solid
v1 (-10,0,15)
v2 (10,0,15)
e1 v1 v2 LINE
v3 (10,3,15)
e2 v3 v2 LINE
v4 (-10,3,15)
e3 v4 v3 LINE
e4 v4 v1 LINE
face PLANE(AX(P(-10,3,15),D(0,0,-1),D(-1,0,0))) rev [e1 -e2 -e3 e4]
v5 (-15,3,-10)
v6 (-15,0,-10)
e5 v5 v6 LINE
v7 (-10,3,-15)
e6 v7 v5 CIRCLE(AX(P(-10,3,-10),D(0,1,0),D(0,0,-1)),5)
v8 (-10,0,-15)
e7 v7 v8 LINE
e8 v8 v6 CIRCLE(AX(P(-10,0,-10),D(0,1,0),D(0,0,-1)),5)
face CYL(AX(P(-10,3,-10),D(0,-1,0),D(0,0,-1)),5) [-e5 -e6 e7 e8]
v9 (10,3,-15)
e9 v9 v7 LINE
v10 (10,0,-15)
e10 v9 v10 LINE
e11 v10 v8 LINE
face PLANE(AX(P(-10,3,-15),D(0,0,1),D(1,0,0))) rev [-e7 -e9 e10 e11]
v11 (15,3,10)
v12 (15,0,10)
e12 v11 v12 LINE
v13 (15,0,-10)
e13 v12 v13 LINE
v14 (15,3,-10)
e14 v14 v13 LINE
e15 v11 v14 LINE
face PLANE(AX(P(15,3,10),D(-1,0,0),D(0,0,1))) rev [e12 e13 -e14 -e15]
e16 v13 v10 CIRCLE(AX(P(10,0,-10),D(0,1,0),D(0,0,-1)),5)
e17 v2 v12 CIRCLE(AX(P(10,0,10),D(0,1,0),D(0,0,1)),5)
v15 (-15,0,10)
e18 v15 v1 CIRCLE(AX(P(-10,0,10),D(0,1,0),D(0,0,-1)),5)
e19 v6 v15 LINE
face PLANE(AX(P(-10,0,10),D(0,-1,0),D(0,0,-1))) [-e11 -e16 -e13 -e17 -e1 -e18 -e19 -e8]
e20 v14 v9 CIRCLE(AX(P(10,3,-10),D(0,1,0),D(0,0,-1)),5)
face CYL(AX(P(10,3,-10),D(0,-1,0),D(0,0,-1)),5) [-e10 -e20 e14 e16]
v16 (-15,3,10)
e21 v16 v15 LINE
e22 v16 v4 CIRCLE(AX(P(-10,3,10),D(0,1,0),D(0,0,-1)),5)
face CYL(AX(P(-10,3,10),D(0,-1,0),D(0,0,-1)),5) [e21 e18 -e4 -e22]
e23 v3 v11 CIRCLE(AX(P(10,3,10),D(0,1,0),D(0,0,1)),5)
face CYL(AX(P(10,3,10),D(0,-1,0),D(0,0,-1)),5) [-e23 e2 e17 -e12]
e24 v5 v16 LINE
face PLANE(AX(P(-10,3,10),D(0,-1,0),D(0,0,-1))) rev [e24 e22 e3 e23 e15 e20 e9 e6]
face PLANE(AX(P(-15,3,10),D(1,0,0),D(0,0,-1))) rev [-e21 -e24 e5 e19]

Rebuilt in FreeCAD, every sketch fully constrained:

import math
import FreeCAD as App
import Part
import Sketcher
Q = App.Units.Quantity

doc = App.newDocument("Part")
body = doc.addObject("PartDesign::Body", "Body")

# Sketch on XZ plane
sketch1 = body.newObject("Sketcher::SketchObject", "Sketch")
sketch1.AttachmentSupport = (doc.getObject("XZ_Plane"), [""])
sketch1.MapMode = "FlatFace"
sketch1.addGeometry([
    Part.LineSegment(App.Vector(-10, 15, 0), App.Vector(10, 15, 0)),  # 0
    Part.ArcOfCircle(Part.Circle(App.Vector(10, 10, 0), App.Vector(0, 0, 1), 5), math.radians(0), math.radians(90)),  # 1
    Part.LineSegment(App.Vector(15, 10, 0), App.Vector(15, -10, 0)),  # 2
    Part.ArcOfCircle(Part.Circle(App.Vector(10, -10, 0), App.Vector(0, 0, 1), 5), math.radians(-90), math.radians(0)),  # 3
    Part.LineSegment(App.Vector(10, -15, 0), App.Vector(-10, -15, 0)),  # 4
    Part.ArcOfCircle(Part.Circle(App.Vector(-10, -10, 0), App.Vector(0, 0, 1), 5), math.radians(180), math.radians(270)),  # 5
    Part.LineSegment(App.Vector(-15, -10, 0), App.Vector(-15, 10, 0)),  # 6
    Part.ArcOfCircle(Part.Circle(App.Vector(-10, 10, 0), App.Vector(0, 0, 1), 5), math.radians(90), math.radians(180)),  # 7
], False)
sketch1.addConstraint([
    Sketcher.Constraint("Tangent", 0, 2, 1, 2),
    Sketcher.Constraint("Tangent", 1, 1, 2, 1),
    Sketcher.Constraint("Tangent", 2, 2, 3, 2),
    Sketcher.Constraint("Tangent", 3, 1, 4, 1),
    Sketcher.Constraint("Tangent", 4, 2, 5, 2),
    Sketcher.Constraint("Tangent", 5, 1, 6, 1),
    Sketcher.Constraint("Tangent", 6, 2, 7, 2),
    Sketcher.Constraint("Tangent", 7, 1, 0, 1),
    Sketcher.Constraint("Horizontal", 0),
    Sketcher.Constraint("Vertical", 2),
    Sketcher.Constraint("Horizontal", 4),
    Sketcher.Constraint("Vertical", 6),
    Sketcher.Constraint("Equal", 1, 3),
    Sketcher.Constraint("Equal", 3, 5),
    Sketcher.Constraint("Equal", 5, 7),
    Sketcher.Constraint("Symmetric", 1, 3, 5, 3, -1, 1),
    Sketcher.Constraint("Equal", 4, 2),
    Sketcher.Constraint("Radius", 1, Q("5 mm")),
    Sketcher.Constraint("DistanceX", 0, 1, 0, 2, Q("20 mm")),
])
pad1 = body.newObject("PartDesign::Pad", "Pad")
pad1.Profile = sketch1
pad1.Length = 3
pad1.Reversed = True

doc.recompute()
